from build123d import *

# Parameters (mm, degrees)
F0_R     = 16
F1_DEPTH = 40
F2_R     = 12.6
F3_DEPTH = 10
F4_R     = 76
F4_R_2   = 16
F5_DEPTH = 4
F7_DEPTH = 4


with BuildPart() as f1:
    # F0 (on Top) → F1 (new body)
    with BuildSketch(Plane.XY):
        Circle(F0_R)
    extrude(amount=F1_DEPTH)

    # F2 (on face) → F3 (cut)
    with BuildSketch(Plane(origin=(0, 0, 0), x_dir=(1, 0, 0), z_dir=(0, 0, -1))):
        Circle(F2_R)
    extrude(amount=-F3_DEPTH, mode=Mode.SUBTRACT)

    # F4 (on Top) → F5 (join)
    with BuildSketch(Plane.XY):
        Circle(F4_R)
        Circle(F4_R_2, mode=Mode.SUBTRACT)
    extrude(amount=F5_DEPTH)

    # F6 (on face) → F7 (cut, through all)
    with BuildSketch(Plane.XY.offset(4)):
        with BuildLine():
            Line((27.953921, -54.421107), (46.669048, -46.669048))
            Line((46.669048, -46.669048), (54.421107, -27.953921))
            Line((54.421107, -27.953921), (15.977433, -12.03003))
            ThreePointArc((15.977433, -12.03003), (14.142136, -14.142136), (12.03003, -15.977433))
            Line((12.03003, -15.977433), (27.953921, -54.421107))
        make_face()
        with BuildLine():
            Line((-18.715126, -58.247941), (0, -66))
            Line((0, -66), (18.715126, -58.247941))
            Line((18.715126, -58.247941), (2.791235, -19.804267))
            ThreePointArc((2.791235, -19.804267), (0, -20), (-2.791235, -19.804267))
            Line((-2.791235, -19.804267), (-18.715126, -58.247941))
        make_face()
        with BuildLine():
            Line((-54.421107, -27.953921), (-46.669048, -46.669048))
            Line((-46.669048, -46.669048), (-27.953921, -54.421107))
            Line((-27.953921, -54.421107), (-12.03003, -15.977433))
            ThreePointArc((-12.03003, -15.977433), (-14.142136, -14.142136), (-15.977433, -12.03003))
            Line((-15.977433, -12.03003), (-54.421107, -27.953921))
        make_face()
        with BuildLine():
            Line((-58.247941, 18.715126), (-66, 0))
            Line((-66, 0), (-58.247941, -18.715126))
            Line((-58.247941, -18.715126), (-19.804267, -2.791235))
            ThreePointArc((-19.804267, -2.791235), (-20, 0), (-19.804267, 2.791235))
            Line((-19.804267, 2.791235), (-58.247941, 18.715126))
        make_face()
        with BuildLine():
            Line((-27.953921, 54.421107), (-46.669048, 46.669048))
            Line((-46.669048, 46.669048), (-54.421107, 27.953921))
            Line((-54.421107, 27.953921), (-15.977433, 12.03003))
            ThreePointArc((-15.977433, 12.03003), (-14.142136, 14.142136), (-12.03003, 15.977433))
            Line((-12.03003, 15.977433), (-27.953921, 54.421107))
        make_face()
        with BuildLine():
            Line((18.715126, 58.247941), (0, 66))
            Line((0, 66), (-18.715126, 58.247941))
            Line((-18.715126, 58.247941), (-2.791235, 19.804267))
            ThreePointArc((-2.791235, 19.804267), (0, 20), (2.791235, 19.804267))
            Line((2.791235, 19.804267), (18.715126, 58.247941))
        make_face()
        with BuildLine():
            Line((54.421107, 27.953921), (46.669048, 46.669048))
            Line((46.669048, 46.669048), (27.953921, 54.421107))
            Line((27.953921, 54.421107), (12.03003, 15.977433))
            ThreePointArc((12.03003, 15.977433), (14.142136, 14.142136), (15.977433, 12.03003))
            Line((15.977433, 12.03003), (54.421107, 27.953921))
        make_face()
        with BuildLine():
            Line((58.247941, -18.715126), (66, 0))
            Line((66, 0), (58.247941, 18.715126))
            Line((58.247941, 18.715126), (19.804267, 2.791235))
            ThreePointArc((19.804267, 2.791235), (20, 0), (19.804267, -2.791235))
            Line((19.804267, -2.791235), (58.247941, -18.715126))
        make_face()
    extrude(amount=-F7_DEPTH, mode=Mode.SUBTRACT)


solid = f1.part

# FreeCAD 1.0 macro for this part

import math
import FreeCAD as App
import Part
import Sketcher
Q = App.Units.Quantity

doc = App.newDocument("Part")
params = doc.addObject("Spreadsheet::Sheet", "Params")
for row, (alias, value) in enumerate([
    ("sketch1_diameter", "32 mm"),
    ("pad1_length", "40 mm"),
    ("sketch2_diameter", "25.2 mm"),
    ("pocket1_length", "10 mm"),
    ("sketch3_diameter", "152 mm"),
    ("sketch3_diameter2", "32 mm"),
    ("pad2_length", "4 mm"),
], start=1):
    params.set(f"A{row}", alias)
    params.set(f"B{row}", "=" + value)
    params.setAlias(f"B{row}", alias)

body = doc.addObject("PartDesign::Body", "Body")

sketch1 = doc.addObject("Sketcher::SketchObject", "Sketch")
body.addObject(sketch1)
sketch1.AttachmentSupport = (doc.XY_Plane, [""])
sketch1.MapMode = "FlatFace"
sketch1.addGeometry(Part.Circle(App.Vector(0, 0, 0), App.Vector(0, 0, 1), 16), False)
sketch1.addConstraint(Sketcher.Constraint("Coincident", 0, 3, -1, 1))
sketch1.addConstraint(Sketcher.Constraint("Diameter", 0, Q("32 mm")))
sketch1.setExpression("Constraints[1]", "Params.sketch1_diameter")
pad1 = doc.addObject("PartDesign::Pad", "Pad")
body.addObject(pad1)
pad1.Profile = sketch1
pad1.setExpression("Length", "Params.pad1_length")

sketch2 = doc.addObject("Sketcher::SketchObject", "Sketch001")
body.addObject(sketch2)
sketch2.AttachmentSupport = (doc.XY_Plane, [""])
sketch2.MapMode = "FlatFace"
sketch2.addGeometry(Part.Circle(App.Vector(0, 0, 0), App.Vector(0, 0, 1), 13), False)
sketch2.addConstraint(Sketcher.Constraint("Coincident", 0, 3, -1, 1))
sketch2.addConstraint(Sketcher.Constraint("Diameter", 0, Q("25.2 mm")))
sketch2.setExpression("Constraints[1]", "Params.sketch2_diameter")
pocket1 = doc.addObject("PartDesign::Pocket", "Pocket")
body.addObject(pocket1)
pocket1.Profile = sketch2
pocket1.setExpression("Length", "Params.pocket1_length")
pocket1.Reversed = True

sketch3 = doc.addObject("Sketcher::SketchObject", "Sketch002")
body.addObject(sketch3)
sketch3.AttachmentSupport = (doc.XY_Plane, [""])
sketch3.MapMode = "FlatFace"
sketch3.addGeometry(Part.Circle(App.Vector(0, 0, 0), App.Vector(0, 0, 1), 76), False)
sketch3.addGeometry(Part.Circle(App.Vector(0, 0, 0), App.Vector(0, 0, 1), 16), False)
sketch3.addConstraint(Sketcher.Constraint("Coincident", 0, 3, -1, 1))
sketch3.addConstraint(Sketcher.Constraint("Coincident", 1, 3, -1, 1))
sketch3.addConstraint(Sketcher.Constraint("Diameter", 0, Q("152 mm")))
sketch3.addConstraint(Sketcher.Constraint("Diameter", 1, Q("32 mm")))
sketch3.setExpression("Constraints[2]", "Params.sketch3_diameter")
sketch3.setExpression("Constraints[3]", "Params.sketch3_diameter2")
pad2 = doc.addObject("PartDesign::Pad", "Pad001")
body.addObject(pad2)
pad2.Profile = sketch3
pad2.setExpression("Length", "Params.pad2_length")

sketch4 = doc.addObject("Sketcher::SketchObject", "Sketch003")
body.addObject(sketch4)
sketch4.AttachmentSupport = (doc.XY_Plane, [""])
sketch4.MapMode = "FlatFace"
sketch4.AttachmentOffset = App.Placement(App.Vector(0, 0, 4), App.Rotation())
sketch4.addGeometry(Part.LineSegment(App.Vector(28, -54, 0), App.Vector(47, -47, 0)), False)
sketch4.addGeometry(Part.LineSegment(App.Vector(47, -47, 0), App.Vector(54, -28, 0)), False)
sketch4.addGeometry(Part.LineSegment(App.Vector(54, -28, 0), App.Vector(16, -12, 0)), False)
sketch4.addGeometry(Part.ArcOfCircle(Part.Circle(App.Vector(0, 0, 0), App.Vector(0, 0, 1), 20), math.radians(-53.02), math.radians(-36.98)), False)
sketch4.addGeometry(Part.LineSegment(App.Vector(12, -16, 0), App.Vector(28, -54, 0)), False)
sketch4.addGeometry(Part.LineSegment(App.Vector(-19, -58, 0), App.Vector(0, -66, 0)), False)
sketch4.addGeometry(Part.LineSegment(App.Vector(0, -66, 0), App.Vector(19, -58, 0)), False)
sketch4.addGeometry(Part.LineSegment(App.Vector(19, -58, 0), App.Vector(3, -20, 0)), False)
sketch4.addGeometry(Part.ArcOfCircle(Part.Circle(App.Vector(0, 0, 0), App.Vector(0, 0, 1), 20), math.radians(-98.02), math.radians(-81.98)), False)
sketch4.addGeometry(Part.LineSegment(App.Vector(-3, -20, 0), App.Vector(-19, -58, 0)), False)
sketch4.addGeometry(Part.LineSegment(App.Vector(-54, -28, 0), App.Vector(-47, -47, 0)), False)
sketch4.addGeometry(Part.LineSegment(App.Vector(-47, -47, 0), App.Vector(-28, -54, 0)), False)
sketch4.addGeometry(Part.LineSegment(App.Vector(-28, -54, 0), App.Vector(-12, -16, 0)), False)
sketch4.addGeometry(Part.ArcOfCircle(Part.Circle(App.Vector(0, 0, 0), App.Vector(0, 0, 1), 20), math.radians(-143.02), math.radians(-126.98)), False)
sketch4.addGeometry(Part.LineSegment(App.Vector(-16, -12, 0), App.Vector(-54, -28, 0)), False)
sketch4.addGeometry(Part.LineSegment(App.Vector(-58, 19, 0), App.Vector(-66, 0, 0)), False)
sketch4.addGeometry(Part.LineSegment(App.Vector(-66, 0, 0), App.Vector(-58, -19, 0)), False)
sketch4.addGeometry(Part.LineSegment(App.Vector(-58, -19, 0), App.Vector(-20, -3, 0)), False)
sketch4.addGeometry(Part.ArcOfCircle(Part.Circle(App.Vector(0, 0, 0), App.Vector(0, 0, 1), 20), math.radians(171.98), math.radians(188.02)), False)
sketch4.addGeometry(Part.LineSegment(App.Vector(-20, 3, 0), App.Vector(-58, 19, 0)), False)
sketch4.addGeometry(Part.LineSegment(App.Vector(-28, 54, 0), App.Vector(-47, 47, 0)), False)
sketch4.addGeometry(Part.LineSegment(App.Vector(-47, 47, 0), App.Vector(-54, 28, 0)), False)
sketch4.addGeometry(Part.LineSegment(App.Vector(-54, 28, 0), App.Vector(-16, 12, 0)), False)
sketch4.addGeometry(Part.ArcOfCircle(Part.Circle(App.Vector(0, 0, 0), App.Vector(0, 0, 1), 20), math.radians(126.98), math.radians(143.02)), False)
sketch4.addGeometry(Part.LineSegment(App.Vector(-12, 16, 0), App.Vector(-28, 54, 0)), False)
sketch4.addGeometry(Part.LineSegment(App.Vector(19, 58, 0), App.Vector(0, 66, 0)), False)
sketch4.addGeometry(Part.LineSegment(App.Vector(0, 66, 0), App.Vector(-19, 58, 0)), False)
sketch4.addGeometry(Part.LineSegment(App.Vector(-19, 58, 0), App.Vector(-3, 20, 0)), False)
sketch4.addGeometry(Part.ArcOfCircle(Part.Circle(App.Vector(0, 0, 0), App.Vector(0, 0, 1), 20), math.radians(81.98), math.radians(98.02)), False)
sketch4.addGeometry(Part.LineSegment(App.Vector(3, 20, 0), App.Vector(19, 58, 0)), False)
sketch4.addGeometry(Part.LineSegment(App.Vector(54, 28, 0), App.Vector(47, 47, 0)), False)
sketch4.addGeometry(Part.LineSegment(App.Vector(47, 47, 0), App.Vector(28, 54, 0)), False)
sketch4.addGeometry(Part.LineSegment(App.Vector(28, 54, 0), App.Vector(12, 16, 0)), False)
sketch4.addGeometry(Part.ArcOfCircle(Part.Circle(App.Vector(0, 0, 0), App.Vector(0, 0, 1), 20), math.radians(36.98), math.radians(53.02)), False)
sketch4.addGeometry(Part.LineSegment(App.Vector(16, 12, 0), App.Vector(54, 28, 0)), False)
sketch4.addGeometry(Part.LineSegment(App.Vector(58, -19, 0), App.Vector(66, 0, 0)), False)
sketch4.addGeometry(Part.LineSegment(App.Vector(66, 0, 0), App.Vector(58, 19, 0)), False)
sketch4.addGeometry(Part.LineSegment(App.Vector(58, 19, 0), App.Vector(20, 3, 0)), False)
sketch4.addGeometry(Part.ArcOfCircle(Part.Circle(App.Vector(0, 0, 0), App.Vector(0, 0, 1), 20), math.radians(-8.02), math.radians(8.02)), False)
sketch4.addGeometry(Part.LineSegment(App.Vector(20, -3, 0), App.Vector(58, -19, 0)), False)
sketch4.addConstraint(Sketcher.Constraint("Coincident", 0, 2, 1, 1))
sketch4.addConstraint(Sketcher.Constraint("Coincident", 1, 2, 2, 1))
sketch4.addConstraint(Sketcher.Constraint("Coincident", 2, 2, 3, 2))
sketch4.addConstraint(Sketcher.Constraint("Coincident", 3, 1, 4, 1))
sketch4.addConstraint(Sketcher.Constraint("Coincident", 4, 2, 0, 1))
sketch4.addConstraint(Sketcher.Constraint("Coincident", 5, 2, 6, 1))
sketch4.addConstraint(Sketcher.Constraint("Coincident", 6, 2, 7, 1))
sketch4.addConstraint(Sketcher.Constraint("Coincident", 7, 2, 8, 2))
sketch4.addConstraint(Sketcher.Constraint("Coincident", 8, 1, 9, 1))
sketch4.addConstraint(Sketcher.Constraint("Coincident", 9, 2, 5, 1))
sketch4.addConstraint(Sketcher.Constraint("Coincident", 10, 2, 11, 1))
sketch4.addConstraint(Sketcher.Constraint("Coincident", 11, 2, 12, 1))
sketch4.addConstraint(Sketcher.Constraint("Coincident", 12, 2, 13, 2))
sketch4.addConstraint(Sketcher.Constraint("Coincident", 13, 1, 14, 1))
sketch4.addConstraint(Sketcher.Constraint("Coincident", 14, 2, 10, 1))
sketch4.addConstraint(Sketcher.Constraint("Coincident", 15, 2, 16, 1))
sketch4.addConstraint(Sketcher.Constraint("Coincident", 16, 2, 17, 1))
sketch4.addConstraint(Sketcher.Constraint("Coincident", 17, 2, 18, 2))
sketch4.addConstraint(Sketcher.Constraint("Coincident", 18, 1, 19, 1))
sketch4.addConstraint(Sketcher.Constraint("Coincident", 19, 2, 15, 1))
sketch4.addConstraint(Sketcher.Constraint("Coincident", 20, 2, 21, 1))
sketch4.addConstraint(Sketcher.Constraint("Coincident", 21, 2, 22, 1))
sketch4.addConstraint(Sketcher.Constraint("Coincident", 22, 2, 23, 2))
sketch4.addConstraint(Sketcher.Constraint("Coincident", 23, 1, 24, 1))
sketch4.addConstraint(Sketcher.Constraint("Coincident", 24, 2, 20, 1))
sketch4.addConstraint(Sketcher.Constraint("Coincident", 25, 2, 26, 1))
sketch4.addConstraint(Sketcher.Constraint("Coincident", 26, 2, 27, 1))
sketch4.addConstraint(Sketcher.Constraint("Coincident", 27, 2, 28, 2))
sketch4.addConstraint(Sketcher.Constraint("Coincident", 28, 1, 29, 1))
sketch4.addConstraint(Sketcher.Constraint("Coincident", 29, 2, 25, 1))
sketch4.addConstraint(Sketcher.Constraint("Coincident", 30, 2, 31, 1))
sketch4.addConstraint(Sketcher.Constraint("Coincident", 31, 2, 32, 1))
sketch4.addConstraint(Sketcher.Constraint("Coincident", 32, 2, 33, 2))
sketch4.addConstraint(Sketcher.Constraint("Coincident", 33, 1, 34, 1))
sketch4.addConstraint(Sketcher.Constraint("Coincident", 34, 2, 30, 1))
sketch4.addConstraint(Sketcher.Constraint("Coincident", 35, 2, 36, 1))
sketch4.addConstraint(Sketcher.Constraint("Coincident", 36, 2, 37, 1))
sketch4.addConstraint(Sketcher.Constraint("Coincident", 37, 2, 38, 2))
sketch4.addConstraint(Sketcher.Constraint("Coincident", 38, 1, 39, 1))
sketch4.addConstraint(Sketcher.Constraint("Coincident", 39, 2, 35, 1))
sketch4.addConstraint(Sketcher.Constraint("Equal", 3, 13))
sketch4.addConstraint(Sketcher.Constraint("Equal", 8, 18))
sketch4.addConstraint(Sketcher.Constraint("Equal", 13, 23))
sketch4.addConstraint(Sketcher.Constraint("Equal", 18, 28))
sketch4.addConstraint(Sketcher.Constraint("Equal", 23, 33))
sketch4.addConstraint(Sketcher.Constraint("Equal", 28, 38))
sketch4.addConstraint(Sketcher.Constraint("Symmetric", 3, 3, 23, 3, -1, 1))
sketch4.addConstraint(Sketcher.Constraint("Symmetric", 8, 3, 28, 3, -1, 1))
sketch4.addConstraint(Sketcher.Constraint("Symmetric", 13, 3, 33, 3, -1, 1))
sketch4.addConstraint(Sketcher.Constraint("Symmetric", 18, 3, 38, 3, -1, 1))
sketch4.addConstraint(Sketcher.Constraint("Symmetric", 0, 2, 20, 2, -1, 1))
sketch4.addConstraint(Sketcher.Constraint("Symmetric", 1, 2, 21, 2, -1, 1))
sketch4.addConstraint(Sketcher.Constraint("Symmetric", 4, 2, 24, 2, -1, 1))
sketch4.addConstraint(Sketcher.Constraint("Symmetric", 5, 2, 25, 2, -1, 1))
sketch4.addConstraint(Sketcher.Constraint("Symmetric", 6, 2, 26, 2, -1, 1))
sketch4.addConstraint(Sketcher.Constraint("Symmetric", 9, 2, 29, 2, -1, 1))
sketch4.addConstraint(Sketcher.Constraint("Symmetric", 10, 2, 30, 2, -1, 1))
sketch4.addConstraint(Sketcher.Constraint("Symmetric", 11, 2, 31, 2, -1, 1))
sketch4.addConstraint(Sketcher.Constraint("Symmetric", 14, 2, 34, 2, -1, 1))
sketch4.addConstraint(Sketcher.Constraint("Symmetric", 15, 2, 35, 2, -1, 1))
sketch4.addConstraint(Sketcher.Constraint("Symmetric", 16, 2, 36, 2, -1, 1))
sketch4.addConstraint(Sketcher.Constraint("Symmetric", 19, 2, 39, 2, -1, 1))
sketch4.addConstraint(Sketcher.Constraint("Symmetric", 3, 3, 13, 3, -2))
sketch4.addConstraint(Sketcher.Constraint("Symmetric", 7, 2, 8, 1, -2))
sketch4.addConstraint(Sketcher.Constraint("Symmetric", 6, 2, 9, 2, -2))
sketch4.addConstraint(Sketcher.Constraint("Symmetric", 0, 2, 10, 2, -2))
sketch4.addConstraint(Sketcher.Constraint("Symmetric", 4, 2, 11, 2, -2))
sketch4.addConstraint(Sketcher.Constraint("Symmetric", 1, 2, 14, 2, -2))
sketch4.addConstraint(Sketcher.Constraint("Symmetric", 19, 2, 36, 2, -2))
sketch4.addConstraint(Sketcher.Constraint("Symmetric", 18, 1, 37, 2, -2))
sketch4.addConstraint(Sketcher.Constraint("PointOnObject", 5, 2, -2))
sketch4.addConstraint(Sketcher.Constraint("PointOnObject", 15, 2, -1))
sketch4.addConstraint(Sketcher.Constraint("Perpendicular", 1, 2))
sketch4.addConstraint(Sketcher.Constraint("Perpendicular", 0, 4))
sketch4.addConstraint(Sketcher.Constraint("Parallel", 2, 5))
sketch4.addConstraint(Sketcher.Constraint("Perpendicular", 4, 6))
sketch4.addConstraint(Sketcher.Constraint("Perpendicular", 6, 7))
sketch4.addConstraint(Sketcher.Constraint("Perpendicular", 11, 12))
sketch4.addConstraint(Sketcher.Constraint("Perpendicular", 10, 14))
sketch4.addConstraint(Sketcher.Constraint("Parallel", 12, 15))
sketch4.addConstraint(Sketcher.Constraint("Perpendicular", 16, 17))
sketch4.addConstraint(Sketcher.Constraint("Perpendicular", 15, 19))
sketch4.addConstraint(Sketcher.Constraint("Perpendicular", 21, 22))
sketch4.addConstraint(Sketcher.Constraint("Perpendicular", 20, 24))
sketch4.addConstraint(Sketcher.Constraint("Perpendicular", 26, 27))
sketch4.addConstraint(Sketcher.Constraint("Perpendicular", 25, 29))
sketch4.addConstraint(Sketcher.Constraint("Perpendicular", 31, 32))
sketch4.addConstraint(Sketcher.Constraint("Perpendicular", 30, 34))
sketch4.addConstraint(Sketcher.Constraint("Perpendicular", 35, 39))
sketch4.addConstraint(Sketcher.Constraint("Equal", 0, 1))
sketch4.addConstraint(Sketcher.Constraint("Equal", 2, 4))
sketch4.addConstraint(Sketcher.Constraint("Equal", 1, 5))
sketch4.addConstraint(Sketcher.Constraint("Equal", 4, 7))
sketch4.addConstraint(Sketcher.Constraint("Equal", 11, 15))
sketch4.addConstraint(Sketcher.Constraint("Equal", 14, 17))
sketch4.addConstraint(Sketcher.Constraint("DistanceY", 5, 2, -1, 1, Q("66 mm")))
sketch4.addConstraint(Sketcher.Constraint("DistanceX", 15, 2, -1, 1, Q("66 mm")))
sketch4.addConstraint(Sketcher.Constraint("Angle", 0, Q("22.499999 deg")))
sketch4.addConstraint(Sketcher.Constraint("Radius", 8, Q("19.99996 mm")))
sketch4.addConstraint(Sketcher.Constraint("Radius", 3, Q("19.999913 mm")))
sketch4.addConstraint(Sketcher.Constraint("DistanceX", 13, 1, 8, 1, Q("13.186198 mm")))
sketch4.addConstraint(Sketcher.Constraint("DistanceY", 18, 1, 23, 1, Q("13.186198 mm")))
sketch4.addConstraint(Sketcher.Constraint("DistanceY", 1, 2, -1, 1, Q("27.953921 mm")))
sketch4.addConstraint(Sketcher.Constraint("DistanceY", 2, 2, -1, 1, Q("12.03003 mm")))
pocket2 = doc.addObject("PartDesign::Pocket", "Pocket001")
body.addObject(pocket2)
pocket2.Profile = sketch4
pocket2.Type = "ThroughAll"

doc.recompute()
